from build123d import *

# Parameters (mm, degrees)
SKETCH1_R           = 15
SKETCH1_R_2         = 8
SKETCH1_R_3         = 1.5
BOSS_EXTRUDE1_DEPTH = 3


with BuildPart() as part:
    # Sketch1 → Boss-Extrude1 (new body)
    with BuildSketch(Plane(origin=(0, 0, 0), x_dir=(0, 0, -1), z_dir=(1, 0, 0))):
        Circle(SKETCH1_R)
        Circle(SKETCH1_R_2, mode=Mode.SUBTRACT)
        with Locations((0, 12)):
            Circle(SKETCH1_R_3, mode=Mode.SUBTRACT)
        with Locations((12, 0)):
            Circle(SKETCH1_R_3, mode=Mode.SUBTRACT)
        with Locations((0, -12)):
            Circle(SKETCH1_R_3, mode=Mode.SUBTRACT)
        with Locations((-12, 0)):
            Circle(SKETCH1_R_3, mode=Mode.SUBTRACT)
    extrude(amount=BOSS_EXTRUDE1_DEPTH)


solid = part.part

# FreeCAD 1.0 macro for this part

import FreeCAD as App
import Part
import Sketcher
Q = App.Units.Quantity

doc = App.newDocument("Part")
body = doc.addObject("PartDesign::Body", "Body")

# Sketch on YZ plane
sketch1 = doc.addObject("Sketcher::SketchObject", "Sketch")
body.addObject(sketch1)
sketch1.AttachmentSupport = (doc.YZ_Plane, [""])
sketch1.MapMode = "FlatFace"
sketch1.addGeometry([
    Part.Circle(App.Vector(0, 0, 0), App.Vector(0, 0, 1), 15),  # 0
    Part.Circle(App.Vector(-12, 0, 0), App.Vector(0, 0, 1), 1.5),  # 1
    Part.Circle(App.Vector(0, 12, 0), App.Vector(0, 0, 1), 1.5),  # 2
    Part.Circle(App.Vector(0, 0, 0), App.Vector(0, 0, 1), 8),  # 3
    Part.Circle(App.Vector(0, -12, 0), App.Vector(0, 0, 1), 1.5),  # 4
    Part.Circle(App.Vector(12, 0, 0), App.Vector(0, 0, 1), 1.5),  # 5
], False)
sketch1.addConstraint([
    Sketcher.Constraint("Coincident", 0, 3, -1, 1),
    Sketcher.Constraint("Coincident", 3, 3, -1, 1),
    Sketcher.Constraint("Equal", 1, 2),
    Sketcher.Constraint("Equal", 2, 4),
    Sketcher.Constraint("Equal", 4, 5),
    Sketcher.Constraint("Symmetric", 2, 3, 4, 3, -1, 1),
    Sketcher.Constraint("Symmetric", 1, 3, 5, 3, -1, 1),
    Sketcher.Constraint("PointOnObject", 1, 3, -1),
    Sketcher.Constraint("PointOnObject", 2, 3, -2),
    Sketcher.Constraint("Diameter", 0, Q("30 mm")),
    Sketcher.Constraint("Diameter", 1, Q("3 mm")),
    Sketcher.Constraint("Diameter", 3, Q("16 mm")),
    Sketcher.Constraint("DistanceX", 1, 3, -1, 1, Q("12 mm")),
    Sketcher.Constraint("DistanceY", -1, 1, 2, 3, Q("12 mm")),
])
pad1 = doc.addObject("PartDesign::Pad", "Pad")
body.addObject(pad1)
pad1.Profile = sketch1
pad1.Length = 3

doc.recompute()
